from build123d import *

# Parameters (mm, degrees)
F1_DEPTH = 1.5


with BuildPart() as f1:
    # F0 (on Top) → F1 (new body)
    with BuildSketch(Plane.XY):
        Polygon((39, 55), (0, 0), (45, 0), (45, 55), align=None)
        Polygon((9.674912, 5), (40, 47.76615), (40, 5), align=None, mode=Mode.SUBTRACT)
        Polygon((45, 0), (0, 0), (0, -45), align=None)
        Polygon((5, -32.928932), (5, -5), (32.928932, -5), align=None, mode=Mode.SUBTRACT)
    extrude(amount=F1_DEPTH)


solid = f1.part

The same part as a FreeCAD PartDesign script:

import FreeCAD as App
import Part
import Sketcher

V = App.Vector

doc = App.newDocument("Part")
body = doc.addObject("PartDesign::Body", "Body")

# Sketch on XY plane
sketch1 = body.newObject("Sketcher::SketchObject", "Sketch")
sketch1.AttachmentSupport = (doc.getObject("XY_Plane"), [""])
sketch1.MapMode = "FlatFace"
sketch1.addGeometry([
    Part.LineSegment(V(39, 55, 0), V(0, 0, 0)),  # 0
    Part.LineSegment(V(0, 0, 0), V(0, -45, 0)),  # 1
    Part.LineSegment(V(0, -45, 0), V(45, 0, 0)),  # 2
    Part.LineSegment(V(45, 0, 0), V(45, 55, 0)),  # 3
    Part.LineSegment(V(45, 55, 0), V(39, 55, 0)),  # 4
    Part.LineSegment(V(32.928932, -5, 0), V(5, -32.928932, 0)),  # 5
    Part.LineSegment(V(5, -32.928932, 0), V(5, -5, 0)),  # 6
    Part.LineSegment(V(5, -5, 0), V(32.928932, -5, 0)),  # 7
    Part.LineSegment(V(40, 5, 0), V(9.674912, 5, 0)),  # 8
    Part.LineSegment(V(9.674912, 5, 0), V(40, 47.76615, 0)),  # 9
    Part.LineSegment(V(40, 47.76615, 0), V(40, 5, 0)),  # 10
], False)
sketch1.addConstraint([
    Sketcher.Constraint("Coincident", 0, 2, 1, 1),
    Sketcher.Constraint("Coincident", 1, 2, 2, 1),
    Sketcher.Constraint("Coincident", 2, 2, 3, 1),
    Sketcher.Constraint("Coincident", 3, 2, 4, 1),
    Sketcher.Constraint("Coincident", 4, 2, 0, 1),
    Sketcher.Constraint("Coincident", 5, 2, 6, 1),
    Sketcher.Constraint("Coincident", 6, 2, 7, 1),
    Sketcher.Constraint("Coincident", 7, 2, 5, 1),
    Sketcher.Constraint("Coincident", 8, 2, 9, 1),
    Sketcher.Constraint("Coincident", 9, 2, 10, 1),
    Sketcher.Constraint("Coincident", 10, 2, 8, 1),
    Sketcher.Constraint("Vertical", 1),
    Sketcher.Constraint("Vertical", 3),
    Sketcher.Constraint("Horizontal", 4),
    Sketcher.Constraint("Vertical", 6),
    Sketcher.Constraint("Horizontal", 7),
    Sketcher.Constraint("Horizontal", 8),
    Sketcher.Constraint("Vertical", 10),
    Sketcher.Constraint("Coincident", 0, 2, -1, 1),
    Sketcher.Constraint("PointOnObject", 2, 2, -1),
    Sketcher.Constraint("Parallel", 2, 5),
    Sketcher.Constraint("Parallel", 0, 9),
    Sketcher.Constraint("Equal", 7, 6),
    Sketcher.Constraint("DistanceX", 4, 2, 4, 1, 6.0),
    Sketcher.Constraint("DistanceY", 1, 2, 1, 1, 45.0),
    Sketcher.Constraint("DistanceY", 3, 1, 3, 2, 55.0),
    Sketcher.Constraint("DistanceX", -1, 1, 5, 2, 5.0),
    Sketcher.Constraint("DistanceY", 6, 2, -1, 1, 5.0),
    Sketcher.Constraint("DistanceY", -1, 1, 8, 2, 5.0),
    Sketcher.Constraint("DistanceX", -1, 1, 9, 2, 40.0),
    Sketcher.Constraint("DistanceX", 8, 2, 8, 1, 30.325088),
    Sketcher.Constraint("DistanceX", 7, 1, 7, 2, 27.928932),
])
pad1 = body.newObject("PartDesign::Pad", "Pad")
pad1.Profile = sketch1
pad1.Length = 1.5

doc.recompute()
